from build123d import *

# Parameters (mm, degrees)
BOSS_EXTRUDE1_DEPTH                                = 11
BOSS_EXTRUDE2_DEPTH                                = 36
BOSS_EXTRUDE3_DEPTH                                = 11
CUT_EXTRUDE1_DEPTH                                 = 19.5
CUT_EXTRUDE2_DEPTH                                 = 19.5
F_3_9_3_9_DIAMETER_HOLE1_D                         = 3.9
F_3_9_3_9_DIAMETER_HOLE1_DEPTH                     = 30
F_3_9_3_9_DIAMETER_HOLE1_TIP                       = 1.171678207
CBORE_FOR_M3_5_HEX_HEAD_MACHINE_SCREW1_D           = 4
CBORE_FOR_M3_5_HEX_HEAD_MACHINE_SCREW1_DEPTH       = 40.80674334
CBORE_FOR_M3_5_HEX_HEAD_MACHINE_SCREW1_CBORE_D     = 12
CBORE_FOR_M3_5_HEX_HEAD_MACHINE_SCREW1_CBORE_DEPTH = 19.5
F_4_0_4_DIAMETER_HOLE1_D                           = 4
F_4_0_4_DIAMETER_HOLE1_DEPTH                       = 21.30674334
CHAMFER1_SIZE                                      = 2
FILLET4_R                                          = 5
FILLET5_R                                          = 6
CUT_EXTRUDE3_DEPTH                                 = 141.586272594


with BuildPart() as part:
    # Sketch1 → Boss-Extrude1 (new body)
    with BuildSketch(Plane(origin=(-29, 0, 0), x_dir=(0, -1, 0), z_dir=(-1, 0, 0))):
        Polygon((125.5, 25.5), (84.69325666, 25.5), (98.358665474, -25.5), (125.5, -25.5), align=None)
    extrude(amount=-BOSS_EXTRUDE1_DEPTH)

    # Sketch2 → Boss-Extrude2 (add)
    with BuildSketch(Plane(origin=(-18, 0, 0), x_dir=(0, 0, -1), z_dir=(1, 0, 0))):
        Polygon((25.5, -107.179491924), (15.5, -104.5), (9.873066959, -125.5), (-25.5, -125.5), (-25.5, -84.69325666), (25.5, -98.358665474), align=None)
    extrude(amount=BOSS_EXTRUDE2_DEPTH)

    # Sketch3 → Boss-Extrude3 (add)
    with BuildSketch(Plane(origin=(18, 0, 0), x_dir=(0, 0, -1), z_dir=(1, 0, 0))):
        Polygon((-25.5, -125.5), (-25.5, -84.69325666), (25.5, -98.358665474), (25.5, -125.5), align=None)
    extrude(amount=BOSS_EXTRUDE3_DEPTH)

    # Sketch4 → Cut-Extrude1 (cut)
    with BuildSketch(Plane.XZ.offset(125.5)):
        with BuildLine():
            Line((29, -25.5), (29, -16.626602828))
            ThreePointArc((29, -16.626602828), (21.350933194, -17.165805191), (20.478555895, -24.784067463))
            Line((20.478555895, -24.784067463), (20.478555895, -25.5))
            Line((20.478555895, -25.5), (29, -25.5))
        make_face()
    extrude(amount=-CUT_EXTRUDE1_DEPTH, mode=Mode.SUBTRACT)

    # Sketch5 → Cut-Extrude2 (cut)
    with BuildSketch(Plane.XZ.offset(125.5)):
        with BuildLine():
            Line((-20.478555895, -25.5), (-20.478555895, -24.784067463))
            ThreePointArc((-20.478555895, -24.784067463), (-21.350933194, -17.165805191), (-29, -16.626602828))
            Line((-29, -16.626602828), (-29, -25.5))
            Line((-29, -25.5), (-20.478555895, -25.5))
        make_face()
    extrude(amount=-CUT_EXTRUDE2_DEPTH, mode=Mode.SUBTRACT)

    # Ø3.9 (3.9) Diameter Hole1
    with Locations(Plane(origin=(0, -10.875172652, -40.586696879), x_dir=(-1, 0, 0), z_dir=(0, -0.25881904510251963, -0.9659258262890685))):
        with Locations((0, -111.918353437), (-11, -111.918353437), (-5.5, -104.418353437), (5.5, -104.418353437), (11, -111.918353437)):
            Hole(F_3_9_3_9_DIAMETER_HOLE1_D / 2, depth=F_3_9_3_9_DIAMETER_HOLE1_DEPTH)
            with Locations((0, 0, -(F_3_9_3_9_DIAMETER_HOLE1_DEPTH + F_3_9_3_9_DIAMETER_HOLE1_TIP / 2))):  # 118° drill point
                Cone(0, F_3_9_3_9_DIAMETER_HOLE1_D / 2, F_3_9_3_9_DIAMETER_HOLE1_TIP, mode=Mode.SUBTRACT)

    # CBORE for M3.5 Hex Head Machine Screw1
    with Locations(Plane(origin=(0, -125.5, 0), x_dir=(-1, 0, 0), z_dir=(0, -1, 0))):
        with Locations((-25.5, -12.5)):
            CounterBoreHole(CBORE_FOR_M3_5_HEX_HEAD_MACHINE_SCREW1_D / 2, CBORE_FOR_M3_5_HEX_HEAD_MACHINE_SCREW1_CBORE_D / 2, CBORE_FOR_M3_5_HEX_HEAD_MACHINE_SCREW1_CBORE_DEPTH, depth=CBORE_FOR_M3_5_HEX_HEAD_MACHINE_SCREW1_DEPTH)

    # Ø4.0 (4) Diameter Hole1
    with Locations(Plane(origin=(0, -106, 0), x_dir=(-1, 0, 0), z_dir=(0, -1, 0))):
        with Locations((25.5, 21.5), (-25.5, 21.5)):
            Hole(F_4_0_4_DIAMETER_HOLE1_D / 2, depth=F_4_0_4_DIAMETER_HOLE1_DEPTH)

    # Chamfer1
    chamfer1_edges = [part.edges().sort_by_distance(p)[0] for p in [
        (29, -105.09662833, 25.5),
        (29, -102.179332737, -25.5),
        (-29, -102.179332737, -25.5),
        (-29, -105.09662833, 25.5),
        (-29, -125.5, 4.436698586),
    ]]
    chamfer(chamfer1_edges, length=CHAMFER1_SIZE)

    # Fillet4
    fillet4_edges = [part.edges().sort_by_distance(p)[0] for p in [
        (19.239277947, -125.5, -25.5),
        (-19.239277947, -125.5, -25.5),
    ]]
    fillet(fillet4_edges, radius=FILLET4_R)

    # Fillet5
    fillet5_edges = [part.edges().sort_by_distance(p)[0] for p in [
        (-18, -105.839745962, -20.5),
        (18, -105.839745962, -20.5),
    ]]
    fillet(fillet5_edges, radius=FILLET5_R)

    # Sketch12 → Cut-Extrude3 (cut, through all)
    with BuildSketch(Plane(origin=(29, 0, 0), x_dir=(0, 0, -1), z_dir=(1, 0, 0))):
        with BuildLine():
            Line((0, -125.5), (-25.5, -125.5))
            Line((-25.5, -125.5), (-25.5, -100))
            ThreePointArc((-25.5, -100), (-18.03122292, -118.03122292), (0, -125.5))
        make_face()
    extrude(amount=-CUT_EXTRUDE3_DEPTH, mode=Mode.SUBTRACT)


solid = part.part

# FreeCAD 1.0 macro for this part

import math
import FreeCAD as App
import Part
import Sketcher
Q = App.Units.Quantity


def edges_at(feature, points):
    """Names of the edges that pass closest to the given points."""
    edges = feature.Shape.Edges
    near = lambda p: min(range(len(edges)), key=lambda i: edges[i].distToShape(Part.Vertex(*p))[0])
    return sorted({f"Edge{near(p) + 1}" for p in points})


def add_polygon(sketch, points):
    """Adds a closed chain of lines whose ends are joined by coincident constraints."""
    first, n = sketch.GeometryCount, len(points)
    for a, b in zip(points, points[1:] + points[:1]):
        sketch.addGeometry(Part.LineSegment(App.Vector(*a, 0), App.Vector(*b, 0)), False)
    for i in range(n):
        sketch.addConstraint(Sketcher.Constraint("Coincident", first + i, 2, first + (i + 1) % n, 1))

doc = App.newDocument("Part")
body = doc.addObject("PartDesign::Body", "Body")

# Sketch on YZ plane
sketch1 = body.newObject("Sketcher::SketchObject", "Sketch")
sketch1.AttachmentSupport = (doc.getObject("YZ_Plane"), [""])
sketch1.MapMode = "FlatFace"
sketch1.AttachmentOffset = App.Placement(App.Vector(0, 0, -29), App.Rotation())
add_polygon(sketch1, [(-126, 26), (-85, 26), (-98, -26), (-126, -26)])  # lines 0-3
sketch1.addConstraint([
    Sketcher.Constraint("Horizontal", 0),
    Sketcher.Constraint("Horizontal", 2),
    Sketcher.Constraint("Vertical", 3),
    Sketcher.Constraint("DistanceY", 3, 1, 3, 2, 51.0),
    Sketcher.Constraint("Angle", 1, Q("-105 deg")),
    Sketcher.Constraint("DistanceY", -1, 1, 0, 2, 25.5),
    Sketcher.Constraint("DistanceX", 2, 2, -1, 1, 125.5),
    Sketcher.Constraint("DistanceX", 0, 1, 0, 2, 40.806743),
])
pad1 = body.newObject("PartDesign::Pad", "Pad")
pad1.Profile = sketch1
pad1.Length = 11

# Sketch on YZ plane
sketch2 = body.newObject("Sketcher::SketchObject", "Sketch001")
sketch2.AttachmentSupport = (doc.getObject("YZ_Plane"), [""])
sketch2.MapMode = "FlatFace"
sketch2.AttachmentOffset = App.Placement(App.Vector(0, 0, -18), App.Rotation())
add_polygon(sketch2, [(-104, -16), (-107, -26), (-98, -26), (-85, 26), (-126, 26), (-126, -10)])  # lines 0-5
sketch2.addConstraint([
    Sketcher.Constraint("Horizontal", 1),
    Sketcher.Constraint("Horizontal", 3),
    Sketcher.Constraint("Vertical", 4),
    Sketcher.Constraint("Parallel", 0, 2),
    Sketcher.Constraint("Perpendicular", 2, 5),
    Sketcher.Constraint("Angle", 0, Q("-105 deg")),
    Sketcher.Constraint("DistanceY", 1, 2, 2, 2, 51.0),
    Sketcher.Constraint("DistanceY", 0, 2, 5, 2, 10.0),
    Sketcher.Constraint("DistanceX", 4, 2, 5, 2, 21.0),
    Sketcher.Constraint("DistanceY", 0, 2, -1, 1, 25.5),
    Sketcher.Constraint("DistanceX", 3, 2, -1, 1, 125.5),
    Sketcher.Constraint("DistanceX", 1, 1, 1, 2, 8.820826),
])
pad2 = body.newObject("PartDesign::Pad", "Pad001")
pad2.Profile = sketch2
pad2.Length = 36

# Sketch on YZ plane
sketch3 = body.newObject("Sketcher::SketchObject", "Sketch002")
sketch3.AttachmentSupport = (doc.getObject("YZ_Plane"), [""])
sketch3.MapMode = "FlatFace"
sketch3.AttachmentOffset = App.Placement(App.Vector(0, 0, 18), App.Rotation())
add_polygon(sketch3, [(-85, 26), (-126, 26), (-126, -26), (-98, -26)])  # lines 0-3
sketch3.addConstraint([
    Sketcher.Constraint("Horizontal", 0),
    Sketcher.Constraint("Vertical", 1),
    Sketcher.Constraint("Horizontal", 2),
    Sketcher.Constraint("DistanceY", 1, 2, 1, 1, 51.0),
    Sketcher.Constraint("Angle", 3, Q("75 deg")),
    Sketcher.Constraint("DistanceX", 0, 2, -1, 1, 125.5),
    Sketcher.Constraint("DistanceY", -1, 1, 0, 2, 25.5),
    Sketcher.Constraint("DistanceX", 0, 2, 0, 1, 40.806743),
])
pad3 = body.newObject("PartDesign::Pad", "Pad002")
pad3.Profile = sketch3
pad3.Length = 11

# Sketch on XZ plane
sketch4 = body.newObject("Sketcher::SketchObject", "Sketch003")
sketch4.AttachmentSupport = (doc.getObject("XZ_Plane"), [""])
sketch4.MapMode = "FlatFace"
sketch4.AttachmentOffset = App.Placement(App.Vector(0, 0, 125.5), App.Rotation())
sketch4.addGeometry([
    Part.LineSegment(App.Vector(29, -25.5, 0), App.Vector(29, -16.6, 0)),
    Part.ArcOfCircle(Part.Circle(App.Vector(25.5, -21.5, 0), App.Vector(0, 0, 1), 6), math.radians(54), math.radians(213)),
    Part.LineSegment(App.Vector(20.5, -24.8, 0), App.Vector(20.5, -25.5, 0)),
    Part.LineSegment(App.Vector(20.5, -25.5, 0), App.Vector(29, -25.5, 0)),
], False)
sketch4.addConstraint([
    Sketcher.Constraint("Coincident", 0, 2, 1, 1),
    Sketcher.Constraint("Coincident", 1, 2, 2, 1),
    Sketcher.Constraint("Coincident", 2, 2, 3, 1),
    Sketcher.Constraint("Coincident", 3, 2, 0, 1),
    Sketcher.Constraint("Vertical", 0),
    Sketcher.Constraint("Vertical", 2),
    Sketcher.Constraint("Horizontal", 3),
    Sketcher.Constraint("Radius", 1, 6.0),
    Sketcher.Constraint("DistanceX", -1, 1, 0, 2, 29.0),
    Sketcher.Constraint("DistanceY", 2, 2, 1, 3, 4.0),
    Sketcher.Constraint("DistanceX", -1, 1, 1, 3, 25.5),
    Sketcher.Constraint("DistanceY", 1, 3, -1, 1, 21.5),
    Sketcher.Constraint("DistanceX", 3, 1, 3, 2, 8.521444),
])
pocket1 = body.newObject("PartDesign::Pocket", "Pocket")
pocket1.Profile = sketch4
pocket1.Length = 19.5

# Sketch on XZ plane
sketch5 = body.newObject("Sketcher::SketchObject", "Sketch004")
sketch5.AttachmentSupport = (doc.getObject("XZ_Plane"), [""])
sketch5.MapMode = "FlatFace"
sketch5.AttachmentOffset = App.Placement(App.Vector(0, 0, 125.5), App.Rotation())
sketch5.addGeometry([
    Part.LineSegment(App.Vector(-20.5, -25.5, 0), App.Vector(-20.5, -24.8, 0)),
    Part.ArcOfCircle(Part.Circle(App.Vector(-25.5, -21.5, 0), App.Vector(0, 0, 1), 6), math.radians(-33), math.radians(126)),
    Part.LineSegment(App.Vector(-29, -16.6, 0), App.Vector(-29, -25.5, 0)),
    Part.LineSegment(App.Vector(-29, -25.5, 0), App.Vector(-20.5, -25.5, 0)),
], False)
sketch5.addConstraint([
    Sketcher.Constraint("Coincident", 0, 2, 1, 1),
    Sketcher.Constraint("Coincident", 1, 2, 2, 1),
    Sketcher.Constraint("Coincident", 2, 2, 3, 1),
    Sketcher.Constraint("Coincident", 3, 2, 0, 1),
    Sketcher.Constraint("Vertical", 0),
    Sketcher.Constraint("Vertical", 2),
    Sketcher.Constraint("Horizontal", 3),
    Sketcher.Constraint("Radius", 1, 6.0),
    Sketcher.Constraint("DistanceX", 1, 2, -1, 1, 29.0),
    Sketcher.Constraint("DistanceY", 2, 2, 1, 3, 4.0),
    Sketcher.Constraint("DistanceX", 1, 3, -1, 1, 25.5),
    Sketcher.Constraint("DistanceY", 1, 3, -1, 1, 21.5),
    Sketcher.Constraint("DistanceX", 3, 1, 3, 2, 8.521444),
])
pocket2 = body.newObject("PartDesign::Pocket", "Pocket001")
pocket2.Profile = sketch5
pocket2.Length = 19.5

# Sketch on an angled plane
sketch6 = body.newObject("Sketcher::SketchObject", "Sketch005")
sketch6.Placement = App.Placement(App.Vector(0, -10.875173, -40.586697), App.Rotation(App.Vector(-1, 0, 0), App.Vector(0, 0.965925826, -0.258819045), App.Vector(0, -0.258819045, -0.965925826), "ZXY"))
sketch6.addGeometry([
    Part.Circle(App.Vector(0, -111.9, 0), App.Vector(0, 0, 1), 1.9),  # 0
    Part.Circle(App.Vector(-11, -111.9, 0), App.Vector(0, 0, 1), 1.9),  # 1
    Part.Circle(App.Vector(-5.5, -104.4, 0), App.Vector(0, 0, 1), 1.9),  # 2
    Part.Circle(App.Vector(5.5, -104.4, 0), App.Vector(0, 0, 1), 1.9),  # 3
    Part.Circle(App.Vector(11, -111.9, 0), App.Vector(0, 0, 1), 1.9),  # 4
], False)
sketch6.addConstraint([
    Sketcher.Constraint("Equal", 0, 1),
    Sketcher.Constraint("Equal", 1, 2),
    Sketcher.Constraint("Equal", 2, 3),
    Sketcher.Constraint("Equal", 3, 4),
    Sketcher.Constraint("Symmetric", 2, 3, 3, 3, -2),
    Sketcher.Constraint("Symmetric", 1, 3, 4, 3, -2),
    Sketcher.Constraint("PointOnObject", 0, 3, -2),
    Sketcher.Constraint("Horizontal", 0, 3, 1, 3),
    Sketcher.Constraint("Diameter", 0, 3.9),
    Sketcher.Constraint("DistanceX", 1, 3, -1, 1, 11.0),
    Sketcher.Constraint("DistanceX", 2, 3, 3, 3, 11.0),
    Sketcher.Constraint("DistanceY", 0, 3, 2, 3, 7.5),
    Sketcher.Constraint("DistanceY", 0, 3, -1, 1, 111.918353),
])
doc.recompute()
hole = body.newObject("PartDesign::Hole", "Hole")
hole.Profile = sketch6
hole.ThreadType = "None"
hole.Diameter = 3.9
hole.DepthType = "Dimension"
hole.Depth = 30
hole.DrillPoint = "Angled"
hole.DrillPointAngle = 118

# Sketch on XZ plane
sketch7 = body.newObject("Sketcher::SketchObject", "Sketch006")
sketch7.AttachmentSupport = (doc.getObject("XZ_Plane"), [""])
sketch7.MapMode = "FlatFace"
sketch7.AttachmentOffset = App.Placement(App.Vector(0, 0, 125.5), App.Rotation())
sketch7.addGeometry(Part.Circle(App.Vector(25.5, 12.5, 0), App.Vector(0, 0, 1), 2), False)
sketch7.addConstraint([
    Sketcher.Constraint("Diameter", 0, 4.0),
    Sketcher.Constraint("DistanceX", -1, 1, 0, 3, 25.5),
    Sketcher.Constraint("DistanceY", -1, 1, 0, 3, 12.5),
])
doc.recompute()
hole2 = body.newObject("PartDesign::Hole", "Hole001")
hole2.Profile = sketch7
hole2.ThreadType = "None"
hole2.Diameter = 4
hole2.DepthType = "Dimension"
hole2.Depth = 40.806743
hole2.DrillPoint = "Flat"
hole2.HoleCutType = "Counterbore"
hole2.HoleCutDiameter = 12
hole2.HoleCutDepth = 19.5

# Sketch on XZ plane
sketch8 = body.newObject("Sketcher::SketchObject", "Sketch007")
sketch8.AttachmentSupport = (doc.getObject("XZ_Plane"), [""])
sketch8.MapMode = "FlatFace"
sketch8.AttachmentOffset = App.Placement(App.Vector(0, 0, 106), App.Rotation())
sketch8.addGeometry([
    Part.Circle(App.Vector(-25.5, -21.5, 0), App.Vector(0, 0, 1), 2),
    Part.Circle(App.Vector(25.5, -21.5, 0), App.Vector(0, 0, 1), 2),
], False)
sketch8.addConstraint([
    Sketcher.Constraint("Equal", 0, 1),
    Sketcher.Constraint("Symmetric", 0, 3, 1, 3, -2),
    Sketcher.Constraint("Diameter", 0, 4.0),
    Sketcher.Constraint("DistanceX", 0, 3, 1, 3, 51.0),
    Sketcher.Constraint("DistanceY", 0, 3, -1, 1, 21.5),
])
doc.recompute()
hole3 = body.newObject("PartDesign::Hole", "Hole002")
hole3.Profile = sketch8
hole3.ThreadType = "None"
hole3.Diameter = 4
hole3.DepthType = "Dimension"
hole3.Depth = 21.306743
hole3.DrillPoint = "Flat"
doc.recompute()

chamfer = body.newObject("PartDesign::Chamfer", "Chamfer")
chamfer.Base = (hole3, edges_at(hole3, [
    (29, -105.097, 25.5),
    (29, -102.179, -25.5),
    (-29, -102.179, -25.5),
    (-29, -105.097, 25.5),
    (-29, -125.5, 4.437),
]))
chamfer.Size = 2
doc.recompute()

fillet = body.newObject("PartDesign::Fillet", "Fillet")
fillet.Base = (chamfer, edges_at(chamfer, [(19.239, -125.5, -25.5), (-19.239, -125.5, -25.5)]))
fillet.Radius = 5
doc.recompute()

fillet2 = body.newObject("PartDesign::Fillet", "Fillet001")
fillet2.Base = (fillet, edges_at(fillet, [(-18, -105.84, -20.5), (18, -105.84, -20.5)]))
fillet2.Radius = 6

# Sketch on YZ plane
sketch9 = body.newObject("Sketcher::SketchObject", "Sketch008")
sketch9.AttachmentSupport = (doc.getObject("YZ_Plane"), [""])
sketch9.MapMode = "FlatFace"
sketch9.AttachmentOffset = App.Placement(App.Vector(0, 0, 29), App.Rotation())
sketch9.addGeometry([
    Part.LineSegment(App.Vector(-126, 26, 0), App.Vector(-126, 0, 0)),
    Part.ArcOfCircle(Part.Circle(App.Vector(-100, 0, 0), App.Vector(0, 0, 1), 26), math.radians(90), math.radians(180)),
    Part.LineSegment(App.Vector(-100, 26, 0), App.Vector(-126, 26, 0)),
], False)
sketch9.addConstraint([
    Sketcher.Constraint("Tangent", 0, 2, 1, 2),
    Sketcher.Constraint("Tangent", 1, 1, 2, 1),
    Sketcher.Constraint("Coincident", 2, 2, 0, 1),
    Sketcher.Constraint("Vertical", 0),
    Sketcher.Constraint("Horizontal", 2),
    Sketcher.Constraint("PointOnObject", 1, 3, -1),
    Sketcher.Constraint("Radius", 1, 25.5),
    Sketcher.Constraint("DistanceX", 1, 3, -1, 1, 100.0),
])
pocket3 = body.newObject("PartDesign::Pocket", "Pocket002")
pocket3.Profile = sketch9
pocket3.Type = "ThroughAll"

doc.recompute()
